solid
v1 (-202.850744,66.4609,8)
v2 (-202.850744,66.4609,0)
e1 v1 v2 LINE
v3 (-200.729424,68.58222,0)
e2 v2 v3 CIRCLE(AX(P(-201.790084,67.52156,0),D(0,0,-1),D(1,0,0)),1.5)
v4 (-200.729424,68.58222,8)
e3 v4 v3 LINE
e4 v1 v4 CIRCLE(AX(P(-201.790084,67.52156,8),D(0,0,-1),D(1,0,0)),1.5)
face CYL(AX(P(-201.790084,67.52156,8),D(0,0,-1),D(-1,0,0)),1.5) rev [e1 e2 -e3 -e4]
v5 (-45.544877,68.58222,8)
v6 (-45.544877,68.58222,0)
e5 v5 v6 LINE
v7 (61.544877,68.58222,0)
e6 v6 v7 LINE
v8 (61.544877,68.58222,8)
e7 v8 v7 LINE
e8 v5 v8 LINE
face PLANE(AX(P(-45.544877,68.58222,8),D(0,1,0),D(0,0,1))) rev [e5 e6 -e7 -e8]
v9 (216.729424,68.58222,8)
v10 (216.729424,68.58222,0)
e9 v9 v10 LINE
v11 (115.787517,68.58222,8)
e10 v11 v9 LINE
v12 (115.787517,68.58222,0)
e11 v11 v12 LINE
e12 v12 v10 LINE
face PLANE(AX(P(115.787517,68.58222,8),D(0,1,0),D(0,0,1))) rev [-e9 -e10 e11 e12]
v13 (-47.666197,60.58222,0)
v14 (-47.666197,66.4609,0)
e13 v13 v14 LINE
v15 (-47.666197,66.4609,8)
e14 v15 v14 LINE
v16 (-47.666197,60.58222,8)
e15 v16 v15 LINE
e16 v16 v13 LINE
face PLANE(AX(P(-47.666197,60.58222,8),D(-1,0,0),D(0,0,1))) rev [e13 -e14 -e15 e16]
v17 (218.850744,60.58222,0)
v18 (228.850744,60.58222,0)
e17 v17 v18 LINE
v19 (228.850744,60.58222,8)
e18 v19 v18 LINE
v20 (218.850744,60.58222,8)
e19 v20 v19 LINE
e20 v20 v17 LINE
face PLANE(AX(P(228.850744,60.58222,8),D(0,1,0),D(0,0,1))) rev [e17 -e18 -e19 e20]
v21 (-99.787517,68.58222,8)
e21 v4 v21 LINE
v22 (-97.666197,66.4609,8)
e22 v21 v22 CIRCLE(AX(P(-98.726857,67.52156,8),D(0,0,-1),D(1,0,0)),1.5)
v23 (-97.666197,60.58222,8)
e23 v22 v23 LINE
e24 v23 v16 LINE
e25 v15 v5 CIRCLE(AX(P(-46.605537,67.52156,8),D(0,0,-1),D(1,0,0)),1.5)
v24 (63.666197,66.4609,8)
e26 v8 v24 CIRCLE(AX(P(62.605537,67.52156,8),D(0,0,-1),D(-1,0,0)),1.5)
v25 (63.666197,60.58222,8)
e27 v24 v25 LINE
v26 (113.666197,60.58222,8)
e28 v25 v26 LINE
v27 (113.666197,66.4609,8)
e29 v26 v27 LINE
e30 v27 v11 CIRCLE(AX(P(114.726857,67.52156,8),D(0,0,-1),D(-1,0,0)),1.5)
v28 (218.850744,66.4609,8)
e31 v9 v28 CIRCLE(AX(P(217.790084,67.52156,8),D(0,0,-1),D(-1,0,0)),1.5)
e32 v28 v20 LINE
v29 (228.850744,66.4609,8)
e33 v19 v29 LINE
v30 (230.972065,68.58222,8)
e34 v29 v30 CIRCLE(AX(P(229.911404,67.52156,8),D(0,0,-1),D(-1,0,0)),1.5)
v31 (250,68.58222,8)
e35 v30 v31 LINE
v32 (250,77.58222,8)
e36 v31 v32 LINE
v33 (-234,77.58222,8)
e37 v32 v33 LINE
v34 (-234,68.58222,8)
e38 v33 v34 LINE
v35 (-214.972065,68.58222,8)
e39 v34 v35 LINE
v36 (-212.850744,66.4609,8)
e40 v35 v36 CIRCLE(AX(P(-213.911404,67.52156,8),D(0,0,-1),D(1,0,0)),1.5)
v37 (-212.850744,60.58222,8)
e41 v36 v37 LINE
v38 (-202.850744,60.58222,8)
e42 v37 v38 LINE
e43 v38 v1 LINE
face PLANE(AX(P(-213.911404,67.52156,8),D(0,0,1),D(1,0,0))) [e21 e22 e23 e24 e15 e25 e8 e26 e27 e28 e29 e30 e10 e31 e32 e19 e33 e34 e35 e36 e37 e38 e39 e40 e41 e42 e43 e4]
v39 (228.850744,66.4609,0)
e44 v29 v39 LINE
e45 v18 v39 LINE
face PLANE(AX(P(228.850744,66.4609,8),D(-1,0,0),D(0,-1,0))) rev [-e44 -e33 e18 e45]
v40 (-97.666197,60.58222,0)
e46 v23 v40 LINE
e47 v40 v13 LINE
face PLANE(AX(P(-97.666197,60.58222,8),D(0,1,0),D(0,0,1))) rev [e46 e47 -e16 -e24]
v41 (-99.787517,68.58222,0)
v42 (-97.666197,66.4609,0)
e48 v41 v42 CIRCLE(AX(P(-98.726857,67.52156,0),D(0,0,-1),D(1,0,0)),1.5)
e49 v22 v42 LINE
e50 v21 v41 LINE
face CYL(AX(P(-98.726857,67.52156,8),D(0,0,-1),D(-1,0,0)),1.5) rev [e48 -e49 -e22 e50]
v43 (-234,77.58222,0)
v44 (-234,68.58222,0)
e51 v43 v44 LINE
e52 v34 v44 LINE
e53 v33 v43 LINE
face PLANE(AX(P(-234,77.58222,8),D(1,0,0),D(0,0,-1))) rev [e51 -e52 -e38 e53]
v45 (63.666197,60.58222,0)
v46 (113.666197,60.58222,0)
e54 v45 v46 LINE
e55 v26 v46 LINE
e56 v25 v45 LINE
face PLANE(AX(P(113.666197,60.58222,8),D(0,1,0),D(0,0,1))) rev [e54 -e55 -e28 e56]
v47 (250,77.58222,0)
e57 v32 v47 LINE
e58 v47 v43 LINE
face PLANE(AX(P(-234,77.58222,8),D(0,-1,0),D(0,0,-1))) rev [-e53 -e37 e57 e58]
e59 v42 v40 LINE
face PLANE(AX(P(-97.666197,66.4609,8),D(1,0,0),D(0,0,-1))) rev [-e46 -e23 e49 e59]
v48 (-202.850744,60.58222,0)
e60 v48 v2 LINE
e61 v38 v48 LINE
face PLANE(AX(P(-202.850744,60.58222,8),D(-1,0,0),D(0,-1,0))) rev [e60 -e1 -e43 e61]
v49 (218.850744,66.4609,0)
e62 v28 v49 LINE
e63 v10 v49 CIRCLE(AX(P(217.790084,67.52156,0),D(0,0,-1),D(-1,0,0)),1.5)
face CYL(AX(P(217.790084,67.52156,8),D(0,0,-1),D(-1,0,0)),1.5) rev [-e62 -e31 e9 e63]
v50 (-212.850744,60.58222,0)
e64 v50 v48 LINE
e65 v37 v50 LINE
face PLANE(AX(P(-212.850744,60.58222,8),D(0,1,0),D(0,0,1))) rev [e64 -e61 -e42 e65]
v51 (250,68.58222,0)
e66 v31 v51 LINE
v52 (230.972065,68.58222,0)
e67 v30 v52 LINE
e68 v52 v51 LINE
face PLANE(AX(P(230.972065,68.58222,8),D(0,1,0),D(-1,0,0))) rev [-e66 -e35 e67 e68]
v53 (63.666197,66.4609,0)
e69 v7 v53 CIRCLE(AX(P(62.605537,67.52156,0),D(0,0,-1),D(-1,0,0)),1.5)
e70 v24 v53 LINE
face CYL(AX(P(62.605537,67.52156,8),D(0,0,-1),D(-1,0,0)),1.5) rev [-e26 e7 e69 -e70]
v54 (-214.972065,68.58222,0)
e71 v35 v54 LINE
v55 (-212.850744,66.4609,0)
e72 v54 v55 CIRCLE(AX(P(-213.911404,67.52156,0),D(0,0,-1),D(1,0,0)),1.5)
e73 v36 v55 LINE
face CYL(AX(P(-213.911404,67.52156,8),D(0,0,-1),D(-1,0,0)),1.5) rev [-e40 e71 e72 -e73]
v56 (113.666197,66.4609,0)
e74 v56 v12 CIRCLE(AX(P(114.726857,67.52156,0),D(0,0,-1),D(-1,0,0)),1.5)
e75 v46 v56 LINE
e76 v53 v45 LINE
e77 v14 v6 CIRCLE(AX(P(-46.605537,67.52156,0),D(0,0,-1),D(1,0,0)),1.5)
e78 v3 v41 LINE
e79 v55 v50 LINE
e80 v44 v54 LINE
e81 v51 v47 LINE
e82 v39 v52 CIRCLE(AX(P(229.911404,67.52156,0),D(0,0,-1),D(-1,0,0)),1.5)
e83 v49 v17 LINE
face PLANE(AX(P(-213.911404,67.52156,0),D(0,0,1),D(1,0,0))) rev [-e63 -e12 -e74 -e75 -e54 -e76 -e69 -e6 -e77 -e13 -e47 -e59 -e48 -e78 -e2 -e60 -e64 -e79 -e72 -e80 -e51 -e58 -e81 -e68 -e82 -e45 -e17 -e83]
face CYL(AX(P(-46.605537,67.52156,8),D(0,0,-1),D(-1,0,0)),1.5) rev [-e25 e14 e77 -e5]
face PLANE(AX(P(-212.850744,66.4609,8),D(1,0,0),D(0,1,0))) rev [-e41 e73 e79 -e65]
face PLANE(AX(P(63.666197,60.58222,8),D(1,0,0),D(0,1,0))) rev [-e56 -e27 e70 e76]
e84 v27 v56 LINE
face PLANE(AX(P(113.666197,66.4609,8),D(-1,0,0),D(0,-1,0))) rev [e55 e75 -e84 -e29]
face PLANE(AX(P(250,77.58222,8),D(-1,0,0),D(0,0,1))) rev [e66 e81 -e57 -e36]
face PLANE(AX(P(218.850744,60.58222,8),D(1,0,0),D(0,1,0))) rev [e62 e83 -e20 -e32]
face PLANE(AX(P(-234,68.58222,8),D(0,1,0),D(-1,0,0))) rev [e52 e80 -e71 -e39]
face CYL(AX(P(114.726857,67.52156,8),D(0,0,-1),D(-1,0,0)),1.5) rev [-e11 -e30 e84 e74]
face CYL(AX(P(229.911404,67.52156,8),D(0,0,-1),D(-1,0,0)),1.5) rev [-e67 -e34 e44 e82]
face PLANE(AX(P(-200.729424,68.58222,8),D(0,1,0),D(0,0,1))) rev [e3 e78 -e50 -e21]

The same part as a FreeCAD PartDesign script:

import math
import FreeCAD as App
import Part
import Sketcher
Q = App.Units.Quantity

doc = App.newDocument("Part")
body = doc.addObject("PartDesign::Body", "Body")

sketch1 = body.newObject("Sketcher::SketchObject", "Sketch")
sketch1.AttachmentSupport = (doc.getObject("XY_Plane"), [""])
sketch1.MapMode = "FlatFace"
sketch1.addGeometry([
    Part.LineSegment(App.Vector(250, 77.6, 0), App.Vector(-234, 77.6, 0)),
    Part.LineSegment(App.Vector(-234, 77.6, 0), App.Vector(-234, 68.6, 0)),
    Part.LineSegment(App.Vector(-234, 68.6, 0), App.Vector(-215, 68.6, 0)),
    Part.ArcOfCircle(Part.Circle(App.Vector(-213.9, 67.5, 0), App.Vector(0, 0, 1), 1.5), math.radians(-45), math.radians(135)),
    Part.LineSegment(App.Vector(-212.9, 66.5, 0), App.Vector(-212.9, 60.6, 0)),
    Part.LineSegment(App.Vector(-212.9, 60.6, 0), App.Vector(-202.9, 60.6, 0)),
    Part.LineSegment(App.Vector(-202.9, 60.6, 0), App.Vector(-202.9, 66.5, 0)),
    Part.ArcOfCircle(Part.Circle(App.Vector(-201.8, 67.5, 0), App.Vector(0, 0, 1), 1.5), math.radians(45), math.radians(225)),
    Part.LineSegment(App.Vector(-200.7, 68.6, 0), App.Vector(-99.8, 68.6, 0)),
    Part.ArcOfCircle(Part.Circle(App.Vector(-98.7, 67.5, 0), App.Vector(0, 0, 1), 1.5), math.radians(-45), math.radians(135)),
    Part.LineSegment(App.Vector(-97.7, 66.5, 0), App.Vector(-97.7, 60.6, 0)),
    Part.LineSegment(App.Vector(-97.7, 60.6, 0), App.Vector(-47.7, 60.6, 0)),
    Part.LineSegment(App.Vector(-47.7, 60.6, 0), App.Vector(-47.7, 66.5, 0)),
    Part.ArcOfCircle(Part.Circle(App.Vector(-46.6, 67.5, 0), App.Vector(0, 0, 1), 1.5), math.radians(45), math.radians(225)),
    Part.LineSegment(App.Vector(-45.5, 68.6, 0), App.Vector(61.5, 68.6, 0)),
    Part.ArcOfCircle(Part.Circle(App.Vector(62.6, 67.5, 0), App.Vector(0, 0, 1), 1.5), math.radians(-45), math.radians(135)),
    Part.LineSegment(App.Vector(63.7, 66.5, 0), App.Vector(63.7, 60.6, 0)),
    Part.LineSegment(App.Vector(63.7, 60.6, 0), App.Vector(113.7, 60.6, 0)),
    Part.LineSegment(App.Vector(113.7, 60.6, 0), App.Vector(113.7, 66.5, 0)),
    Part.ArcOfCircle(Part.Circle(App.Vector(114.7, 67.5, 0), App.Vector(0, 0, 1), 1.5), math.radians(45), math.radians(225)),
    Part.LineSegment(App.Vector(115.8, 68.6, 0), App.Vector(216.7, 68.6, 0)),
    Part.ArcOfCircle(Part.Circle(App.Vector(217.8, 67.5, 0), App.Vector(0, 0, 1), 1.5), math.radians(-45), math.radians(135)),
    Part.LineSegment(App.Vector(218.9, 66.5, 0), App.Vector(218.9, 60.6, 0)),
    Part.LineSegment(App.Vector(218.9, 60.6, 0), App.Vector(228.9, 60.6, 0)),
    Part.LineSegment(App.Vector(228.9, 60.6, 0), App.Vector(228.9, 66.5, 0)),
    Part.ArcOfCircle(Part.Circle(App.Vector(229.9, 67.5, 0), App.Vector(0, 0, 1), 1.5), math.radians(45), math.radians(225)),
    Part.LineSegment(App.Vector(231, 68.6, 0), App.Vector(250, 68.6, 0)),
    Part.LineSegment(App.Vector(250, 68.6, 0), App.Vector(250, 77.6, 0)),
], False)
sketch1.addConstraint([
    Sketcher.Constraint("Coincident", 0, 2, 1, 1),
    Sketcher.Constraint("Coincident", 1, 2, 2, 1),
    Sketcher.Constraint("Coincident", 2, 2, 3, 2),
    Sketcher.Constraint("Coincident", 3, 1, 4, 1),
    Sketcher.Constraint("Coincident", 4, 2, 5, 1),
    Sketcher.Constraint("Coincident", 5, 2, 6, 1),
    Sketcher.Constraint("Coincident", 6, 2, 7, 2),
    Sketcher.Constraint("Coincident", 7, 1, 8, 1),
    Sketcher.Constraint("Coincident", 8, 2, 9, 2),
    Sketcher.Constraint("Coincident", 9, 1, 10, 1),
    Sketcher.Constraint("Coincident", 10, 2, 11, 1),
    Sketcher.Constraint("Coincident", 11, 2, 12, 1),
    Sketcher.Constraint("Coincident", 12, 2, 13, 2),
    Sketcher.Constraint("Coincident", 13, 1, 14, 1),
    Sketcher.Constraint("Coincident", 14, 2, 15, 2),
    Sketcher.Constraint("Coincident", 15, 1, 16, 1),
    Sketcher.Constraint("Coincident", 16, 2, 17, 1),
    Sketcher.Constraint("Coincident", 17, 2, 18, 1),
    Sketcher.Constraint("Coincident", 18, 2, 19, 2),
    Sketcher.Constraint("Coincident", 19, 1, 20, 1),
    Sketcher.Constraint("Coincident", 20, 2, 21, 2),
    Sketcher.Constraint("Coincident", 21, 1, 22, 1),
    Sketcher.Constraint("Coincident", 22, 2, 23, 1),
    Sketcher.Constraint("Coincident", 23, 2, 24, 1),
    Sketcher.Constraint("Coincident", 24, 2, 25, 2),
    Sketcher.Constraint("Coincident", 25, 1, 26, 1),
    Sketcher.Constraint("Coincident", 26, 2, 27, 1),
    Sketcher.Constraint("Coincident", 27, 2, 0, 1),
    Sketcher.Constraint("Horizontal", 0),
    Sketcher.Constraint("Vertical", 1),
    Sketcher.Constraint("Horizontal", 2),
    Sketcher.Constraint("Vertical", 4),
    Sketcher.Constraint("Horizontal", 5),
    Sketcher.Constraint("Vertical", 6),
    Sketcher.Constraint("Horizontal", 8),
    Sketcher.Constraint("Vertical", 10),
    Sketcher.Constraint("Horizontal", 11),
    Sketcher.Constraint("Vertical", 12),
    Sketcher.Constraint("Horizontal", 14),
    Sketcher.Constraint("Vertical", 16),
    Sketcher.Constraint("Horizontal", 17),
    Sketcher.Constraint("Vertical", 18),
    Sketcher.Constraint("Horizontal", 20),
    Sketcher.Constraint("Vertical", 22),
    Sketcher.Constraint("Horizontal", 23),
    Sketcher.Constraint("Vertical", 24),
    Sketcher.Constraint("Horizontal", 26),
    Sketcher.Constraint("Vertical", 27),
    Sketcher.Constraint("Equal", 3, 7),
    Sketcher.Constraint("Equal", 7, 9),
    Sketcher.Constraint("Equal", 9, 13),
    Sketcher.Constraint("Equal", 13, 15),
    Sketcher.Constraint("Equal", 15, 19),
    Sketcher.Constraint("Equal", 19, 21),
    Sketcher.Constraint("Equal", 21, 25),
    Sketcher.Constraint("Horizontal", 3, 3, 7, 3),
    Sketcher.Constraint("Horizontal", 7, 3, 9, 3),
    Sketcher.Constraint("Horizontal", 9, 3, 13, 3),
    Sketcher.Constraint("Horizontal", 13, 3, 15, 3),
    Sketcher.Constraint("Horizontal", 15, 3, 19, 3),
    Sketcher.Constraint("Horizontal", 19, 3, 21, 3),
    Sketcher.Constraint("Horizontal", 21, 3, 25, 3),
    Sketcher.Constraint("Horizontal", 3, 1, 6, 2),
    Sketcher.Constraint("Horizontal", 2, 2, 7, 1),
    Sketcher.Constraint("Horizontal", 6, 2, 9, 1),
    Sketcher.Constraint("Horizontal", 5, 2, 10, 2),
    Sketcher.Constraint("Horizontal", 9, 1, 12, 2),
    Sketcher.Constraint("Horizontal", 8, 2, 13, 1),
    Sketcher.Constraint("Horizontal", 12, 2, 15, 1),
    Sketcher.Constraint("Horizontal", 11, 2, 16, 2),
    Sketcher.Constraint("Horizontal", 15, 1, 18, 2),
    Sketcher.Constraint("Horizontal", 14, 2, 19, 1),
    Sketcher.Constraint("Horizontal", 18, 2, 21, 1),
    Sketcher.Constraint("Horizontal", 17, 2, 22, 2),
    Sketcher.Constraint("Horizontal", 21, 1, 24, 2),
    Sketcher.Constraint("Horizontal", 20, 2, 25, 1),
    Sketcher.Constraint("Equal", 11, 17),
    Sketcher.Constraint("Equal", 8, 20),
    Sketcher.Constraint("Equal", 5, 23),
    Sketcher.Constraint("Equal", 2, 26),
    Sketcher.Constraint("Radius", 3, Q("1.5 mm")),
    Sketcher.Constraint("DistanceX", 0, 2, 0, 1, Q("484 mm")),
    Sketcher.Constraint("DistanceX", 5, 1, 5, 2, Q("10 mm")),
    Sketcher.Constraint("DistanceX", 11, 1, 11, 2, Q("50 mm")),
    Sketcher.Constraint("DistanceY", 1, 2, 1, 1, Q("9 mm")),
    Sketcher.Constraint("DistanceX", 0, 2, -1, 1, Q("234 mm")),
    Sketcher.Constraint("DistanceY", 4, 2, 2, 2, Q("8 mm")),
    Sketcher.Constraint("DistanceY", 4, 2, 4, 1, Q("5.87868 mm")),
    Sketcher.Constraint("DistanceY", -1, 1, 3, 1, Q("66.4609 mm")),
    Sketcher.Constraint("DistanceX", 2, 1, 2, 2, Q("19.027935 mm")),
    Sketcher.Constraint("DistanceX", 8, 1, 8, 2, Q("100.941907 mm")),
    Sketcher.Constraint("DistanceY", -1, 1, 3, 3, Q("67.52156 mm")),
])
pad1 = body.newObject("PartDesign::Pad", "Pad")
pad1.Profile = sketch1
pad1.Length = 8

doc.recompute()
